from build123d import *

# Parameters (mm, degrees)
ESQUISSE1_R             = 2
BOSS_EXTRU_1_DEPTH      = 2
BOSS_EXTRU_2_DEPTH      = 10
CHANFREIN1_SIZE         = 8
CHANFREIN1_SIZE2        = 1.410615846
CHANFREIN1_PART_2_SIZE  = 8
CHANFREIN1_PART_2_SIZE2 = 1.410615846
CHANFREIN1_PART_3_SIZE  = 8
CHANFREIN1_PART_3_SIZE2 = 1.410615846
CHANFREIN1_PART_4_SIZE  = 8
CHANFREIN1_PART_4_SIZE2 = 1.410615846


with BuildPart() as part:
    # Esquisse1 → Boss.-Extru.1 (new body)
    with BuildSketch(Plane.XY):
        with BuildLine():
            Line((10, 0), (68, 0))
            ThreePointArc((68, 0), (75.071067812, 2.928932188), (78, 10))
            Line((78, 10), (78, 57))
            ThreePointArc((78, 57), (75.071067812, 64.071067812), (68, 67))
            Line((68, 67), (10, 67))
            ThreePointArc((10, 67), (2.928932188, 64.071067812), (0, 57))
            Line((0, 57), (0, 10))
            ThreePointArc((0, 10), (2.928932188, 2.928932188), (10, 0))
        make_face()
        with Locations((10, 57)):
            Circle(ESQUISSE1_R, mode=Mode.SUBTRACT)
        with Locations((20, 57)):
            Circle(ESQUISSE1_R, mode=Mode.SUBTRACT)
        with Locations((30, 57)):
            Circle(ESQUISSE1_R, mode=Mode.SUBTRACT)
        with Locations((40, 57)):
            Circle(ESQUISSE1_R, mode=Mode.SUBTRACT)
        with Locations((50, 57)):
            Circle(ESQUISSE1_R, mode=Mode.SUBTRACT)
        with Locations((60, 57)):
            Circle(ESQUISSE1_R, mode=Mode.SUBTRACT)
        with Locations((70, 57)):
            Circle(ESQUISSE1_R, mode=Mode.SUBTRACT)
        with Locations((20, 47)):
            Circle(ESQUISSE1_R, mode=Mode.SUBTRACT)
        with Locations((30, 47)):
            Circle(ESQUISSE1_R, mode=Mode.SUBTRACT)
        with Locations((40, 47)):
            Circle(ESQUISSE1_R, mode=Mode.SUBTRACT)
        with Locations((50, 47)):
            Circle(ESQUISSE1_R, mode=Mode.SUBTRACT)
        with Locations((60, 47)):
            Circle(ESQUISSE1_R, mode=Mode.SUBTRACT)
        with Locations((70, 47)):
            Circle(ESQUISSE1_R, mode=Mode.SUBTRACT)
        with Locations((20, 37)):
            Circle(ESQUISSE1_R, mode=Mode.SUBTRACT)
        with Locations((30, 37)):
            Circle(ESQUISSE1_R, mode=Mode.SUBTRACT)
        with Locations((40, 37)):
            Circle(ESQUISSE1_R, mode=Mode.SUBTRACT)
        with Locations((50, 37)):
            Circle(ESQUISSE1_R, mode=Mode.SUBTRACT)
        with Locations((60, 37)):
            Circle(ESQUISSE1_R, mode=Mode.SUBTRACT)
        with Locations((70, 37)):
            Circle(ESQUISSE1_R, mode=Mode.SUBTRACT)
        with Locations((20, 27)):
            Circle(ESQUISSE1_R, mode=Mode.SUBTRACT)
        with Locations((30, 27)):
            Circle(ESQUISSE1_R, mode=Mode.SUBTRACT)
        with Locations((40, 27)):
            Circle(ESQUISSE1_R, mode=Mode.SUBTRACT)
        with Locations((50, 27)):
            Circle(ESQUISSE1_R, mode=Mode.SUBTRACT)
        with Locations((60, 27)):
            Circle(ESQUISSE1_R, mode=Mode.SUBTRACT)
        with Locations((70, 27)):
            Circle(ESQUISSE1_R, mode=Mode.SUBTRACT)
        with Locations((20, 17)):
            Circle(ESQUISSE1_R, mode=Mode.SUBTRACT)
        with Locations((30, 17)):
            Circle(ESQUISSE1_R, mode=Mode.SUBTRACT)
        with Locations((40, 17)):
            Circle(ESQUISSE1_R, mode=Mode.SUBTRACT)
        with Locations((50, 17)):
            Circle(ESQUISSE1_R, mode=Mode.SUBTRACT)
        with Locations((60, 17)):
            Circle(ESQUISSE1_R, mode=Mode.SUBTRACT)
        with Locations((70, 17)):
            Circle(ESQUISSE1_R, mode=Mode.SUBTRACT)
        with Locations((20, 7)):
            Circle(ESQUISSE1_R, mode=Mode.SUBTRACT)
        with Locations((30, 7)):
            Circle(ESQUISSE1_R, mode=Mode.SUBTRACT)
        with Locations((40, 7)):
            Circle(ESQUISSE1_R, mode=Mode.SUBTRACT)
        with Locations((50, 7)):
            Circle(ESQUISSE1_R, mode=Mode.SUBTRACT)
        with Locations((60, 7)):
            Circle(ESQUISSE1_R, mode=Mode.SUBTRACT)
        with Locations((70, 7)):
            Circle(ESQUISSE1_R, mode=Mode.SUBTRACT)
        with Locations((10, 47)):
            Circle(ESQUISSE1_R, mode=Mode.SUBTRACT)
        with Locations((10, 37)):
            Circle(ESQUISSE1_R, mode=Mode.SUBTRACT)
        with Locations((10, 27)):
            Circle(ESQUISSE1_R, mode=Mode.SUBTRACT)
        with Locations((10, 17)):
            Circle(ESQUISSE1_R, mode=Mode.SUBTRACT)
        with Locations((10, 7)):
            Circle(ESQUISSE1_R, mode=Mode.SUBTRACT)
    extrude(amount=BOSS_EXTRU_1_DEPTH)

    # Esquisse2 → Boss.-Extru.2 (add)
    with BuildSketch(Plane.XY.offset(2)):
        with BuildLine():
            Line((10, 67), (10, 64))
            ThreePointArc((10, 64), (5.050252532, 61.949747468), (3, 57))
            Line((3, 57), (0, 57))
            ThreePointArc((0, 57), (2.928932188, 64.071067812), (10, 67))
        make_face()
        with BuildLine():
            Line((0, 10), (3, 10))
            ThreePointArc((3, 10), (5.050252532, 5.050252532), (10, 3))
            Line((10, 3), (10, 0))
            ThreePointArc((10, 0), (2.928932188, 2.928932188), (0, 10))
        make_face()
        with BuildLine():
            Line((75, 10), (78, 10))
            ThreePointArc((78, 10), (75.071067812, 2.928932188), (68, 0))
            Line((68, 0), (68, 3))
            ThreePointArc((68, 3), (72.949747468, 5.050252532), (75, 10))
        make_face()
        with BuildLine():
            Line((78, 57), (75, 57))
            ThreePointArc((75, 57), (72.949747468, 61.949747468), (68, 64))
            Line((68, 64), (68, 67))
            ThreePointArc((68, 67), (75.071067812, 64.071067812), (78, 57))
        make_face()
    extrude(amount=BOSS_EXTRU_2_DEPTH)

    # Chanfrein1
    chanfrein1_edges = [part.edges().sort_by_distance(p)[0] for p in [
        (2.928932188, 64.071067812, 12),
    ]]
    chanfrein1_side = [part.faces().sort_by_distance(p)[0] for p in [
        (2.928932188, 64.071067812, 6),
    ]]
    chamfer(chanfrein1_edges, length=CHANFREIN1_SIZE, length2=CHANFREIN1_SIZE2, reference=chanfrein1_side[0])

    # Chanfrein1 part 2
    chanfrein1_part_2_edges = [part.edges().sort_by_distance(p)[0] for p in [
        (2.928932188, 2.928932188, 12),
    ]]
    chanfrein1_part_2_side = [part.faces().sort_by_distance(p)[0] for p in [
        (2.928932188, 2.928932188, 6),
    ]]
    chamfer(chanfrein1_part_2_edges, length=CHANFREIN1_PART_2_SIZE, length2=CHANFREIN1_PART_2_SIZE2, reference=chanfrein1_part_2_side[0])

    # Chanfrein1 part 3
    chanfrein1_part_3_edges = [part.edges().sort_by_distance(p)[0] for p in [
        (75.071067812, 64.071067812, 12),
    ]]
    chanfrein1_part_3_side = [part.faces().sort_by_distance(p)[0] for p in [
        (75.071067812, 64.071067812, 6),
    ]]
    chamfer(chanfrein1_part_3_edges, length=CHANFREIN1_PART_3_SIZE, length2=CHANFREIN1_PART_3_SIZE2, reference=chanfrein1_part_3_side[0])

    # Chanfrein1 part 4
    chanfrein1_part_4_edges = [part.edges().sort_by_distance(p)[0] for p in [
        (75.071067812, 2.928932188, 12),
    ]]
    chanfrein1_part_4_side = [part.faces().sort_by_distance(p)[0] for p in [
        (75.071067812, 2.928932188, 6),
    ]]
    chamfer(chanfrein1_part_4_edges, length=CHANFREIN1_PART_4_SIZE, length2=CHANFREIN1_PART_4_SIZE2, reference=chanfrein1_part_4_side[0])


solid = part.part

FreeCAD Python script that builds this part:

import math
import FreeCAD as App
import Part
import Sketcher
from FreeCAD import Vector


def edges_at(feature, points):
    """Names of the edges that pass closest to the given points."""
    edges = feature.Shape.Edges
    near = lambda p: min(range(len(edges)), key=lambda i: edges[i].distToShape(Part.Vertex(*p))[0])
    return sorted({f"Edge{near(p) + 1}" for p in points})

doc = App.newDocument("Part")
body = doc.addObject("PartDesign::Body", "Body")

# Sketch on XY plane
sketch1 = body.newObject("Sketcher::SketchObject", "Sketch")
sketch1.AttachmentSupport = (doc.getObject("XY_Plane"), [""])
sketch1.MapMode = "FlatFace"
sketch1.addGeometry(Part.LineSegment(Vector(10, 0, 0), Vector(68, 0, 0)), False)
sketch1.addGeometry(Part.ArcOfCircle(Part.Circle(Vector(68, 10, 0), Vector(0, 0, 1), 10), math.radians(-90), math.radians(0)), False)
sketch1.addGeometry(Part.LineSegment(Vector(78, 10, 0), Vector(78, 57, 0)), False)
sketch1.addGeometry(Part.ArcOfCircle(Part.Circle(Vector(68, 57, 0), Vector(0, 0, 1), 10), math.radians(0), math.radians(90)), False)
sketch1.addGeometry(Part.LineSegment(Vector(68, 67, 0), Vector(10, 67, 0)), False)
sketch1.addGeometry(Part.ArcOfCircle(Part.Circle(Vector(10, 57, 0), Vector(0, 0, 1), 10), math.radians(90), math.radians(180)), False)
sketch1.addGeometry(Part.LineSegment(Vector(0, 57, 0), Vector(0, 10, 0)), False)
sketch1.addGeometry(Part.ArcOfCircle(Part.Circle(Vector(10, 10, 0), Vector(0, 0, 1), 10), math.radians(180), math.radians(270)), False)
sketch1.addGeometry(Part.Circle(Vector(10, 7, 0), Vector(0, 0, 1), 2), False)
sketch1.addGeometry(Part.Circle(Vector(20, 7, 0), Vector(0, 0, 1), 2), False)
sketch1.addGeometry(Part.Circle(Vector(10, 17, 0), Vector(0, 0, 1), 2), False)
sketch1.addGeometry(Part.Circle(Vector(20, 17, 0), Vector(0, 0, 1), 2), False)
sketch1.addGeometry(Part.Circle(Vector(30, 7, 0), Vector(0, 0, 1), 2), False)
sketch1.addGeometry(Part.Circle(Vector(30, 17, 0), Vector(0, 0, 1), 2), False)
sketch1.addGeometry(Part.Circle(Vector(10, 27, 0), Vector(0, 0, 1), 2), False)
sketch1.addGeometry(Part.Circle(Vector(20, 27, 0), Vector(0, 0, 1), 2), False)
sketch1.addGeometry(Part.Circle(Vector(30, 27, 0), Vector(0, 0, 1), 2), False)
sketch1.addGeometry(Part.Circle(Vector(40, 7, 0), Vector(0, 0, 1), 2), False)
sketch1.addGeometry(Part.Circle(Vector(50, 7, 0), Vector(0, 0, 1), 2), False)
sketch1.addGeometry(Part.Circle(Vector(40, 17, 0), Vector(0, 0, 1), 2), False)
sketch1.addGeometry(Part.Circle(Vector(50, 17, 0), Vector(0, 0, 1), 2), False)
sketch1.addGeometry(Part.Circle(Vector(60, 7, 0), Vector(0, 0, 1), 2), False)
sketch1.addGeometry(Part.Circle(Vector(70, 7, 0), Vector(0, 0, 1), 2), False)
sketch1.addGeometry(Part.Circle(Vector(60, 17, 0), Vector(0, 0, 1), 2), False)
sketch1.addGeometry(Part.Circle(Vector(70, 17, 0), Vector(0, 0, 1), 2), False)
sketch1.addGeometry(Part.Circle(Vector(40, 27, 0), Vector(0, 0, 1), 2), False)
sketch1.addGeometry(Part.Circle(Vector(50, 27, 0), Vector(0, 0, 1), 2), False)
sketch1.addGeometry(Part.Circle(Vector(60, 27, 0), Vector(0, 0, 1), 2), False)
sketch1.addGeometry(Part.Circle(Vector(70, 27, 0), Vector(0, 0, 1), 2), False)
sketch1.addGeometry(Part.Circle(Vector(10, 37, 0), Vector(0, 0, 1), 2), False)
sketch1.addGeometry(Part.Circle(Vector(20, 37, 0), Vector(0, 0, 1), 2), False)
sketch1.addGeometry(Part.Circle(Vector(30, 37, 0), Vector(0, 0, 1), 2), False)
sketch1.addGeometry(Part.Circle(Vector(10, 47, 0), Vector(0, 0, 1), 2), False)
sketch1.addGeometry(Part.Circle(Vector(20, 47, 0), Vector(0, 0, 1), 2), False)
sketch1.addGeometry(Part.Circle(Vector(10, 57, 0), Vector(0, 0, 1), 2), False)
sketch1.addGeometry(Part.Circle(Vector(20, 57, 0), Vector(0, 0, 1), 2), False)
sketch1.addGeometry(Part.Circle(Vector(30, 47, 0), Vector(0, 0, 1), 2), False)
sketch1.addGeometry(Part.Circle(Vector(30, 57, 0), Vector(0, 0, 1), 2), False)
sketch1.addGeometry(Part.Circle(Vector(40, 37, 0), Vector(0, 0, 1), 2), False)
sketch1.addGeometry(Part.Circle(Vector(50, 37, 0), Vector(0, 0, 1), 2), False)
sketch1.addGeometry(Part.Circle(Vector(60, 37, 0), Vector(0, 0, 1), 2), False)
sketch1.addGeometry(Part.Circle(Vector(70, 37, 0), Vector(0, 0, 1), 2), False)
sketch1.addGeometry(Part.Circle(Vector(40, 47, 0), Vector(0, 0, 1), 2), False)
sketch1.addGeometry(Part.Circle(Vector(50, 47, 0), Vector(0, 0, 1), 2), False)
sketch1.addGeometry(Part.Circle(Vector(40, 57, 0), Vector(0, 0, 1), 2), False)
sketch1.addGeometry(Part.Circle(Vector(50, 57, 0), Vector(0, 0, 1), 2), False)
sketch1.addGeometry(Part.Circle(Vector(60, 47, 0), Vector(0, 0, 1), 2), False)
sketch1.addGeometry(Part.Circle(Vector(70, 47, 0), Vector(0, 0, 1), 2), False)
sketch1.addGeometry(Part.Circle(Vector(60, 57, 0), Vector(0, 0, 1), 2), False)
sketch1.addGeometry(Part.Circle(Vector(70, 57, 0), Vector(0, 0, 1), 2), False)
sketch1.addConstraint(Sketcher.Constraint("Tangent", 0, 2, 1, 1))
sketch1.addConstraint(Sketcher.Constraint("Tangent", 1, 2, 2, 1))
sketch1.addConstraint(Sketcher.Constraint("Tangent", 2, 2, 3, 1))
sketch1.addConstraint(Sketcher.Constraint("Tangent", 3, 2, 4, 1))
sketch1.addConstraint(Sketcher.Constraint("Tangent", 4, 2, 5, 1))
sketch1.addConstraint(Sketcher.Constraint("Tangent", 5, 2, 6, 1))
sketch1.addConstraint(Sketcher.Constraint("Tangent", 6, 2, 7, 1))
sketch1.addConstraint(Sketcher.Constraint("Tangent", 7, 2, 0, 1))
sketch1.addConstraint(Sketcher.Constraint("Horizontal", 0))
sketch1.addConstraint(Sketcher.Constraint("Vertical", 2))
sketch1.addConstraint(Sketcher.Constraint("Horizontal", 4))
sketch1.addConstraint(Sketcher.Constraint("Vertical", 6))
sketch1.addConstraint(Sketcher.Constraint("Coincident", 34, 3, 5, 3))
sketch1.addConstraint(Sketcher.Constraint("Equal", 1, 3))
sketch1.addConstraint(Sketcher.Constraint("Equal", 3, 5))
sketch1.addConstraint(Sketcher.Constraint("Equal", 5, 7))
sketch1.addConstraint(Sketcher.Constraint("Equal", 8, 9))
sketch1.addConstraint(Sketcher.Constraint("Equal", 9, 10))
sketch1.addConstraint(Sketcher.Constraint("Equal", 10, 11))
sketch1.addConstraint(Sketcher.Constraint("Equal", 11, 12))
sketch1.addConstraint(Sketcher.Constraint("Equal", 12, 13))
sketch1.addConstraint(Sketcher.Constraint("Equal", 13, 14))
sketch1.addConstraint(Sketcher.Constraint("Equal", 14, 15))
sketch1.addConstraint(Sketcher.Constraint("Equal", 15, 16))
sketch1.addConstraint(Sketcher.Constraint("Equal", 16, 17))
sketch1.addConstraint(Sketcher.Constraint("Equal", 17, 18))
sketch1.addConstraint(Sketcher.Constraint("Equal", 18, 19))
sketch1.addConstraint(Sketcher.Constraint("Equal", 19, 20))
sketch1.addConstraint(Sketcher.Constraint("Equal", 20, 21))
sketch1.addConstraint(Sketcher.Constraint("Equal", 21, 22))
sketch1.addConstraint(Sketcher.Constraint("Equal", 22, 23))
sketch1.addConstraint(Sketcher.Constraint("Equal", 23, 24))
sketch1.addConstraint(Sketcher.Constraint("Equal", 24, 25))
sketch1.addConstraint(Sketcher.Constraint("Equal", 25, 26))
sketch1.addConstraint(Sketcher.Constraint("Equal", 26, 27))
sketch1.addConstraint(Sketcher.Constraint("Equal", 27, 28))
sketch1.addConstraint(Sketcher.Constraint("Equal", 28, 29))
sketch1.addConstraint(Sketcher.Constraint("Equal", 29, 30))
sketch1.addConstraint(Sketcher.Constraint("Equal", 30, 31))
sketch1.addConstraint(Sketcher.Constraint("Equal", 31, 32))
sketch1.addConstraint(Sketcher.Constraint("Equal", 32, 33))
sketch1.addConstraint(Sketcher.Constraint("Equal", 33, 34))
sketch1.addConstraint(Sketcher.Constraint("Equal", 34, 35))
sketch1.addConstraint(Sketcher.Constraint("Equal", 35, 36))
sketch1.addConstraint(Sketcher.Constraint("Equal", 36, 37))
sketch1.addConstraint(Sketcher.Constraint("Equal", 37, 38))
sketch1.addConstraint(Sketcher.Constraint("Equal", 38, 39))
sketch1.addConstraint(Sketcher.Constraint("Equal", 39, 40))
sketch1.addConstraint(Sketcher.Constraint("Equal", 40, 41))
sketch1.addConstraint(Sketcher.Constraint("Equal", 41, 42))
sketch1.addConstraint(Sketcher.Constraint("Equal", 42, 43))
sketch1.addConstraint(Sketcher.Constraint("Equal", 43, 44))
sketch1.addConstraint(Sketcher.Constraint("Equal", 44, 45))
sketch1.addConstraint(Sketcher.Constraint("Equal", 45, 46))
sketch1.addConstraint(Sketcher.Constraint("Equal", 46, 47))
sketch1.addConstraint(Sketcher.Constraint("Equal", 47, 48))
sketch1.addConstraint(Sketcher.Constraint("Equal", 48, 49))
sketch1.addConstraint(Sketcher.Constraint("PointOnObject", 0, 2, -1))
sketch1.addConstraint(Sketcher.Constraint("PointOnObject", 5, 2, -2))
sketch1.addConstraint(Sketcher.Constraint("Horizontal", 8, 3, 9, 3))
sketch1.addConstraint(Sketcher.Constraint("Horizontal", 10, 3, 11, 3))
sketch1.addConstraint(Sketcher.Constraint("Horizontal", 9, 3, 12, 3))
sketch1.addConstraint(Sketcher.Constraint("Horizontal", 11, 3, 13, 3))
sketch1.addConstraint(Sketcher.Constraint("Horizontal", 14, 3, 15, 3))
sketch1.addConstraint(Sketcher.Constraint("Horizontal", 15, 3, 16, 3))
sketch1.addConstraint(Sketcher.Constraint("Horizontal", 12, 3, 17, 3))
sketch1.addConstraint(Sketcher.Constraint("Horizontal", 17, 3, 18, 3))
sketch1.addConstraint(Sketcher.Constraint("Horizontal", 13, 3, 19, 3))
sketch1.addConstraint(Sketcher.Constraint("Horizontal", 19, 3, 20, 3))
sketch1.addConstraint(Sketcher.Constraint("Horizontal", 18, 3, 21, 3))
sketch1.addConstraint(Sketcher.Constraint("Horizontal", 21, 3, 22, 3))
sketch1.addConstraint(Sketcher.Constraint("Horizontal", 20, 3, 23, 3))
sketch1.addConstraint(Sketcher.Constraint("Horizontal", 23, 3, 24, 3))
sketch1.addConstraint(Sketcher.Constraint("Horizontal", 16, 3, 25, 3))
sketch1.addConstraint(Sketcher.Constraint("Horizontal", 25, 3, 26, 3))
sketch1.addConstraint(Sketcher.Constraint("Horizontal", 26, 3, 27, 3))
sketch1.addConstraint(Sketcher.Constraint("Horizontal", 27, 3, 28, 3))
sketch1.addConstraint(Sketcher.Constraint("Horizontal", 29, 3, 30, 3))
sketch1.addConstraint(Sketcher.Constraint("Horizontal", 30, 3, 31, 3))
sketch1.addConstraint(Sketcher.Constraint("Horizontal", 32, 3, 33, 3))
sketch1.addConstraint(Sketcher.Constraint("Horizontal", 34, 3, 35, 3))
sketch1.addConstraint(Sketcher.Constraint("Horizontal", 33, 3, 36, 3))
sketch1.addConstraint(Sketcher.Constraint("Horizontal", 35, 3, 37, 3))
sketch1.addConstraint(Sketcher.Constraint("Horizontal", 31, 3, 38, 3))
sketch1.addConstraint(Sketcher.Constraint("Horizontal", 38, 3, 39, 3))
sketch1.addConstraint(Sketcher.Constraint("Horizontal", 39, 3, 40, 3))
sketch1.addConstraint(Sketcher.Constraint("Horizontal", 40, 3, 41, 3))
sketch1.addConstraint(Sketcher.Constraint("Horizontal", 36, 3, 42, 3))
sketch1.addConstraint(Sketcher.Constraint("Horizontal", 42, 3, 43, 3))
sketch1.addConstraint(Sketcher.Constraint("Horizontal", 37, 3, 44, 3))
sketch1.addConstraint(Sketcher.Constraint("Horizontal", 44, 3, 45, 3))
sketch1.addConstraint(Sketcher.Constraint("Horizontal", 43, 3, 46, 3))
sketch1.addConstraint(Sketcher.Constraint("Horizontal", 46, 3, 47, 3))
sketch1.addConstraint(Sketcher.Constraint("Horizontal", 45, 3, 48, 3))
sketch1.addConstraint(Sketcher.Constraint("Horizontal", 48, 3, 49, 3))
sketch1.addConstraint(Sketcher.Constraint("Vertical", 7, 3, 8, 3))
sketch1.addConstraint(Sketcher.Constraint("Vertical", 8, 3, 10, 3))
sketch1.addConstraint(Sketcher.Constraint("Vertical", 9, 3, 11, 3))
sketch1.addConstraint(Sketcher.Constraint("Vertical", 12, 3, 13, 3))
sketch1.addConstraint(Sketcher.Constraint("Vertical", 10, 3, 14, 3))
sketch1.addConstraint(Sketcher.Constraint("Vertical", 11, 3, 15, 3))
sketch1.addConstraint(Sketcher.Constraint("Vertical", 13, 3, 16, 3))
sketch1.addConstraint(Sketcher.Constraint("Vertical", 17, 3, 19, 3))
sketch1.addConstraint(Sketcher.Constraint("Vertical", 18, 3, 20, 3))
sketch1.addConstraint(Sketcher.Constraint("Vertical", 21, 3, 23, 3))
sketch1.addConstraint(Sketcher.Constraint("Vertical", 22, 3, 24, 3))
sketch1.addConstraint(Sketcher.Constraint("Vertical", 19, 3, 25, 3))
sketch1.addConstraint(Sketcher.Constraint("Vertical", 20, 3, 26, 3))
sketch1.addConstraint(Sketcher.Constraint("Vertical", 23, 3, 27, 3))
sketch1.addConstraint(Sketcher.Constraint("Vertical", 24, 3, 28, 3))
sketch1.addConstraint(Sketcher.Constraint("Vertical", 14, 3, 29, 3))
sketch1.addConstraint(Sketcher.Constraint("Vertical", 15, 3, 30, 3))
sketch1.addConstraint(Sketcher.Constraint("Vertical", 16, 3, 31, 3))
sketch1.addConstraint(Sketcher.Constraint("Vertical", 29, 3, 32, 3))
sketch1.addConstraint(Sketcher.Constraint("Vertical", 30, 3, 33, 3))
sketch1.addConstraint(Sketcher.Constraint("Vertical", 33, 3, 35, 3))
sketch1.addConstraint(Sketcher.Constraint("Vertical", 31, 3, 36, 3))
sketch1.addConstraint(Sketcher.Constraint("Vertical", 36, 3, 37, 3))
sketch1.addConstraint(Sketcher.Constraint("Vertical", 25, 3, 38, 3))
sketch1.addConstraint(Sketcher.Constraint("Vertical", 26, 3, 39, 3))
sketch1.addConstraint(Sketcher.Constraint("Vertical", 27, 3, 40, 3))
sketch1.addConstraint(Sketcher.Constraint("Vertical", 28, 3, 41, 3))
sketch1.addConstraint(Sketcher.Constraint("Vertical", 38, 3, 42, 3))
sketch1.addConstraint(Sketcher.Constraint("Vertical", 39, 3, 43, 3))
sketch1.addConstraint(Sketcher.Constraint("Vertical", 42, 3, 44, 3))
sketch1.addConstraint(Sketcher.Constraint("Vertical", 43, 3, 45, 3))
sketch1.addConstraint(Sketcher.Constraint("Vertical", 40, 3, 46, 3))
sketch1.addConstraint(Sketcher.Constraint("Vertical", 41, 3, 47, 3))
sketch1.addConstraint(Sketcher.Constraint("Vertical", 46, 3, 48, 3))
sketch1.addConstraint(Sketcher.Constraint("Vertical", 47, 3, 49, 3))
sketch1.addConstraint(Sketcher.Constraint("Diameter", 8, 4.0))
sketch1.addConstraint(Sketcher.Constraint("Radius", 1, 10.0))
sketch1.addConstraint(Sketcher.Constraint("DistanceX", 0, 1, 0, 2, 58.0))
sketch1.addConstraint(Sketcher.Constraint("DistanceY", 2, 1, 2, 2, 47.0))
sketch1.addConstraint(Sketcher.Constraint("DistanceY", -1, 1, 8, 3, 7.0))
sketch1.addConstraint(Sketcher.Constraint("DistanceX", -1, 1, 9, 3, 20.0))
sketch1.addConstraint(Sketcher.Constraint("DistanceY", -1, 1, 10, 3, 17.0))
sketch1.addConstraint(Sketcher.Constraint("DistanceX", -1, 1, 12, 3, 30.0))
sketch1.addConstraint(Sketcher.Constraint("DistanceY", -1, 1, 14, 3, 27.0))
sketch1.addConstraint(Sketcher.Constraint("DistanceX", -1, 1, 17, 3, 40.0))
sketch1.addConstraint(Sketcher.Constraint("DistanceX", -1, 1, 18, 3, 50.0))
sketch1.addConstraint(Sketcher.Constraint("DistanceX", -1, 1, 21, 3, 60.0))
sketch1.addConstraint(Sketcher.Constraint("DistanceX", -1, 1, 22, 3, 70.0))
sketch1.addConstraint(Sketcher.Constraint("DistanceY", -1, 1, 29, 3, 37.0))
sketch1.addConstraint(Sketcher.Constraint("DistanceY", -1, 1, 32, 3, 47.0))
pad1 = body.newObject("PartDesign::Pad", "Pad")
pad1.Profile = sketch1
pad1.Length = 2

# Sketch on XY plane
sketch2 = body.newObject("Sketcher::SketchObject", "Sketch001")
sketch2.AttachmentSupport = (doc.getObject("XY_Plane"), [""])
sketch2.MapMode = "FlatFace"
sketch2.AttachmentOffset = App.Placement(Vector(0, 0, 2), App.Rotation())
sketch2.addGeometry(Part.LineSegment(Vector(10, 64, 0), Vector(10, 67, 0)), False)
sketch2.addGeometry(Part.ArcOfCircle(Part.Circle(Vector(10, 57, 0), Vector(0, 0, 1), 10), math.radians(90), math.radians(180)), False)
sketch2.addGeometry(Part.LineSegment(Vector(0, 57, 0), Vector(3, 57, 0)), False)
sketch2.addGeometry(Part.ArcOfCircle(Part.Circle(Vector(10, 57, 0), Vector(0, 0, 1), 7), math.radians(90), math.radians(180)), False)
sketch2.addGeometry(Part.LineSegment(Vector(3, 10, 0), Vector(0, 10, 0)), False)
sketch2.addGeometry(Part.ArcOfCircle(Part.Circle(Vector(10, 10, 0), Vector(0, 0, 1), 10), math.radians(180), math.radians(270)), False)
sketch2.addGeometry(Part.LineSegment(Vector(10, 0, 0), Vector(10, 3, 0)), False)
sketch2.addGeometry(Part.ArcOfCircle(Part.Circle(Vector(10, 10, 0), Vector(0, 0, 1), 7), math.radians(-180), math.radians(-90)), False)
sketch2.addGeometry(Part.LineSegment(Vector(78, 10, 0), Vector(75, 10, 0)), False)
sketch2.addGeometry(Part.ArcOfCircle(Part.Circle(Vector(68, 10, 0), Vector(0, 0, 1), 7), math.radians(-90), math.radians(0)), False)
sketch2.addGeometry(Part.LineSegment(Vector(68, 3, 0), Vector(68, 0, 0)), False)
sketch2.addGeometry(Part.ArcOfCircle(Part.Circle(Vector(68, 10, 0), Vector(0, 0, 1), 10), math.radians(-90), math.radians(0)), False)
sketch2.addGeometry(Part.LineSegment(Vector(75, 57, 0), Vector(78, 57, 0)), False)
sketch2.addGeometry(Part.ArcOfCircle(Part.Circle(Vector(68, 57, 0), Vector(0, 0, 1), 10), math.radians(0), math.radians(90)), False)
sketch2.addGeometry(Part.LineSegment(Vector(68, 67, 0), Vector(68, 64, 0)), False)
sketch2.addGeometry(Part.ArcOfCircle(Part.Circle(Vector(68, 57, 0), Vector(0, 0, 1), 7), math.radians(0), math.radians(90)), False)
sketch2.addConstraint(Sketcher.Constraint("Coincident", 0, 2, 1, 1))
sketch2.addConstraint(Sketcher.Constraint("Coincident", 1, 2, 2, 1))
sketch2.addConstraint(Sketcher.Constraint("Coincident", 2, 2, 3, 2))
sketch2.addConstraint(Sketcher.Constraint("Coincident", 3, 1, 0, 1))
sketch2.addConstraint(Sketcher.Constraint("Coincident", 4, 2, 5, 1))
sketch2.addConstraint(Sketcher.Constraint("Coincident", 5, 2, 6, 1))
sketch2.addConstraint(Sketcher.Constraint("Coincident", 6, 2, 7, 2))
sketch2.addConstraint(Sketcher.Constraint("Coincident", 7, 1, 4, 1))
sketch2.addConstraint(Sketcher.Constraint("Coincident", 8, 2, 9, 2))
sketch2.addConstraint(Sketcher.Constraint("Coincident", 9, 1, 10, 1))
sketch2.addConstraint(Sketcher.Constraint("Coincident", 10, 2, 11, 1))
sketch2.addConstraint(Sketcher.Constraint("Coincident", 11, 2, 8, 1))
sketch2.addConstraint(Sketcher.Constraint("Coincident", 12, 2, 13, 1))
sketch2.addConstraint(Sketcher.Constraint("Coincident", 13, 2, 14, 1))
sketch2.addConstraint(Sketcher.Constraint("Coincident", 14, 2, 15, 2))
sketch2.addConstraint(Sketcher.Constraint("Coincident", 15, 1, 12, 1))
sketch2.addConstraint(Sketcher.Constraint("Vertical", 0))
sketch2.addConstraint(Sketcher.Constraint("Horizontal", 2))
sketch2.addConstraint(Sketcher.Constraint("Horizontal", 4))
sketch2.addConstraint(Sketcher.Constraint("Vertical", 6))
sketch2.addConstraint(Sketcher.Constraint("Horizontal", 8))
sketch2.addConstraint(Sketcher.Constraint("Vertical", 10))
sketch2.addConstraint(Sketcher.Constraint("Horizontal", 12))
sketch2.addConstraint(Sketcher.Constraint("Vertical", 14))
sketch2.addConstraint(Sketcher.Constraint("Coincident", 3, 3, 1, 3))
sketch2.addConstraint(Sketcher.Constraint("Coincident", 7, 3, 5, 3))
sketch2.addConstraint(Sketcher.Constraint("Coincident", 11, 3, 9, 3))
sketch2.addConstraint(Sketcher.Constraint("Coincident", 15, 3, 13, 3))
sketch2.addConstraint(Sketcher.Constraint("Equal", 1, 5))
sketch2.addConstraint(Sketcher.Constraint("Equal", 3, 7))
sketch2.addConstraint(Sketcher.Constraint("Equal", 7, 9))
sketch2.addConstraint(Sketcher.Constraint("Equal", 5, 11))
sketch2.addConstraint(Sketcher.Constraint("Equal", 11, 13))
sketch2.addConstraint(Sketcher.Constraint("Equal", 9, 15))
sketch2.addConstraint(Sketcher.Constraint("PointOnObject", 1, 2, -2))
sketch2.addConstraint(Sketcher.Constraint("PointOnObject", 4, 2, -2))
sketch2.addConstraint(Sketcher.Constraint("PointOnObject", 5, 2, -1))
sketch2.addConstraint(Sketcher.Constraint("PointOnObject", 10, 2, -1))
sketch2.addConstraint(Sketcher.Constraint("Horizontal", 3, 3, 13, 3))
sketch2.addConstraint(Sketcher.Constraint("Horizontal", 15, 3, 1, 2))
sketch2.addConstraint(Sketcher.Constraint("Horizontal", 11, 3, 4, 2))
sketch2.addConstraint(Sketcher.Constraint("Horizontal", 7, 1, 8, 2))
sketch2.addConstraint(Sketcher.Constraint("Horizontal", 2, 2, 12, 2))
sketch2.addConstraint(Sketcher.Constraint("Vertical", 11, 3, 13, 3))
sketch2.addConstraint(Sketcher.Constraint("Vertical", 7, 3, 0, 2))
sketch2.addConstraint(Sketcher.Constraint("Vertical", 3, 1, 5, 2))
sketch2.addConstraint(Sketcher.Constraint("Vertical", 15, 3, 9, 1))
sketch2.addConstraint(Sketcher.Constraint("Vertical", 10, 2, 13, 2))
sketch2.addConstraint(Sketcher.Constraint("Radius", 1, 10.0))
sketch2.addConstraint(Sketcher.Constraint("Radius", 3, 7.0))
sketch2.addConstraint(Sketcher.Constraint("DistanceY", -1, 1, 1, 3, 57.0))
sketch2.addConstraint(Sketcher.Constraint("DistanceX", -1, 1, 9, 3, 68.0))
pad2 = body.newObject("PartDesign::Pad", "Pad001")
pad2.Profile = sketch2
pad2.Length = 10
doc.recompute()

chamfer = body.newObject("PartDesign::Chamfer", "Chamfer")
chamfer.Base = (pad2, edges_at(pad2, [(2.929, 64.071, 12)]))
chamfer.ChamferType = "Two distances"
chamfer.Size = 8
chamfer.Size2 = 1.410616
chamfer.FlipDirection = True
doc.recompute()

chamfer2 = body.newObject("PartDesign::Chamfer", "Chamfer001")
chamfer2.Base = (chamfer, edges_at(chamfer, [(2.929, 2.929, 12)]))
chamfer2.ChamferType = "Two distances"
chamfer2.Size = 8
chamfer2.Size2 = 1.410616
doc.recompute()

chamfer3 = body.newObject("PartDesign::Chamfer", "Chamfer002")
chamfer3.Base = (chamfer2, edges_at(chamfer2, [(75.071, 64.071, 12)]))
chamfer3.ChamferType = "Two distances"
chamfer3.Size = 8
chamfer3.Size2 = 1.410616
doc.recompute()

chamfer4 = body.newObject("PartDesign::Chamfer", "Chamfer003")
chamfer4.Base = (chamfer3, edges_at(chamfer3, [(75.071, 2.929, 12)]))
chamfer4.ChamferType = "Two distances"
chamfer4.Size = 8
chamfer4.Size2 = 1.410616

doc.recompute()
